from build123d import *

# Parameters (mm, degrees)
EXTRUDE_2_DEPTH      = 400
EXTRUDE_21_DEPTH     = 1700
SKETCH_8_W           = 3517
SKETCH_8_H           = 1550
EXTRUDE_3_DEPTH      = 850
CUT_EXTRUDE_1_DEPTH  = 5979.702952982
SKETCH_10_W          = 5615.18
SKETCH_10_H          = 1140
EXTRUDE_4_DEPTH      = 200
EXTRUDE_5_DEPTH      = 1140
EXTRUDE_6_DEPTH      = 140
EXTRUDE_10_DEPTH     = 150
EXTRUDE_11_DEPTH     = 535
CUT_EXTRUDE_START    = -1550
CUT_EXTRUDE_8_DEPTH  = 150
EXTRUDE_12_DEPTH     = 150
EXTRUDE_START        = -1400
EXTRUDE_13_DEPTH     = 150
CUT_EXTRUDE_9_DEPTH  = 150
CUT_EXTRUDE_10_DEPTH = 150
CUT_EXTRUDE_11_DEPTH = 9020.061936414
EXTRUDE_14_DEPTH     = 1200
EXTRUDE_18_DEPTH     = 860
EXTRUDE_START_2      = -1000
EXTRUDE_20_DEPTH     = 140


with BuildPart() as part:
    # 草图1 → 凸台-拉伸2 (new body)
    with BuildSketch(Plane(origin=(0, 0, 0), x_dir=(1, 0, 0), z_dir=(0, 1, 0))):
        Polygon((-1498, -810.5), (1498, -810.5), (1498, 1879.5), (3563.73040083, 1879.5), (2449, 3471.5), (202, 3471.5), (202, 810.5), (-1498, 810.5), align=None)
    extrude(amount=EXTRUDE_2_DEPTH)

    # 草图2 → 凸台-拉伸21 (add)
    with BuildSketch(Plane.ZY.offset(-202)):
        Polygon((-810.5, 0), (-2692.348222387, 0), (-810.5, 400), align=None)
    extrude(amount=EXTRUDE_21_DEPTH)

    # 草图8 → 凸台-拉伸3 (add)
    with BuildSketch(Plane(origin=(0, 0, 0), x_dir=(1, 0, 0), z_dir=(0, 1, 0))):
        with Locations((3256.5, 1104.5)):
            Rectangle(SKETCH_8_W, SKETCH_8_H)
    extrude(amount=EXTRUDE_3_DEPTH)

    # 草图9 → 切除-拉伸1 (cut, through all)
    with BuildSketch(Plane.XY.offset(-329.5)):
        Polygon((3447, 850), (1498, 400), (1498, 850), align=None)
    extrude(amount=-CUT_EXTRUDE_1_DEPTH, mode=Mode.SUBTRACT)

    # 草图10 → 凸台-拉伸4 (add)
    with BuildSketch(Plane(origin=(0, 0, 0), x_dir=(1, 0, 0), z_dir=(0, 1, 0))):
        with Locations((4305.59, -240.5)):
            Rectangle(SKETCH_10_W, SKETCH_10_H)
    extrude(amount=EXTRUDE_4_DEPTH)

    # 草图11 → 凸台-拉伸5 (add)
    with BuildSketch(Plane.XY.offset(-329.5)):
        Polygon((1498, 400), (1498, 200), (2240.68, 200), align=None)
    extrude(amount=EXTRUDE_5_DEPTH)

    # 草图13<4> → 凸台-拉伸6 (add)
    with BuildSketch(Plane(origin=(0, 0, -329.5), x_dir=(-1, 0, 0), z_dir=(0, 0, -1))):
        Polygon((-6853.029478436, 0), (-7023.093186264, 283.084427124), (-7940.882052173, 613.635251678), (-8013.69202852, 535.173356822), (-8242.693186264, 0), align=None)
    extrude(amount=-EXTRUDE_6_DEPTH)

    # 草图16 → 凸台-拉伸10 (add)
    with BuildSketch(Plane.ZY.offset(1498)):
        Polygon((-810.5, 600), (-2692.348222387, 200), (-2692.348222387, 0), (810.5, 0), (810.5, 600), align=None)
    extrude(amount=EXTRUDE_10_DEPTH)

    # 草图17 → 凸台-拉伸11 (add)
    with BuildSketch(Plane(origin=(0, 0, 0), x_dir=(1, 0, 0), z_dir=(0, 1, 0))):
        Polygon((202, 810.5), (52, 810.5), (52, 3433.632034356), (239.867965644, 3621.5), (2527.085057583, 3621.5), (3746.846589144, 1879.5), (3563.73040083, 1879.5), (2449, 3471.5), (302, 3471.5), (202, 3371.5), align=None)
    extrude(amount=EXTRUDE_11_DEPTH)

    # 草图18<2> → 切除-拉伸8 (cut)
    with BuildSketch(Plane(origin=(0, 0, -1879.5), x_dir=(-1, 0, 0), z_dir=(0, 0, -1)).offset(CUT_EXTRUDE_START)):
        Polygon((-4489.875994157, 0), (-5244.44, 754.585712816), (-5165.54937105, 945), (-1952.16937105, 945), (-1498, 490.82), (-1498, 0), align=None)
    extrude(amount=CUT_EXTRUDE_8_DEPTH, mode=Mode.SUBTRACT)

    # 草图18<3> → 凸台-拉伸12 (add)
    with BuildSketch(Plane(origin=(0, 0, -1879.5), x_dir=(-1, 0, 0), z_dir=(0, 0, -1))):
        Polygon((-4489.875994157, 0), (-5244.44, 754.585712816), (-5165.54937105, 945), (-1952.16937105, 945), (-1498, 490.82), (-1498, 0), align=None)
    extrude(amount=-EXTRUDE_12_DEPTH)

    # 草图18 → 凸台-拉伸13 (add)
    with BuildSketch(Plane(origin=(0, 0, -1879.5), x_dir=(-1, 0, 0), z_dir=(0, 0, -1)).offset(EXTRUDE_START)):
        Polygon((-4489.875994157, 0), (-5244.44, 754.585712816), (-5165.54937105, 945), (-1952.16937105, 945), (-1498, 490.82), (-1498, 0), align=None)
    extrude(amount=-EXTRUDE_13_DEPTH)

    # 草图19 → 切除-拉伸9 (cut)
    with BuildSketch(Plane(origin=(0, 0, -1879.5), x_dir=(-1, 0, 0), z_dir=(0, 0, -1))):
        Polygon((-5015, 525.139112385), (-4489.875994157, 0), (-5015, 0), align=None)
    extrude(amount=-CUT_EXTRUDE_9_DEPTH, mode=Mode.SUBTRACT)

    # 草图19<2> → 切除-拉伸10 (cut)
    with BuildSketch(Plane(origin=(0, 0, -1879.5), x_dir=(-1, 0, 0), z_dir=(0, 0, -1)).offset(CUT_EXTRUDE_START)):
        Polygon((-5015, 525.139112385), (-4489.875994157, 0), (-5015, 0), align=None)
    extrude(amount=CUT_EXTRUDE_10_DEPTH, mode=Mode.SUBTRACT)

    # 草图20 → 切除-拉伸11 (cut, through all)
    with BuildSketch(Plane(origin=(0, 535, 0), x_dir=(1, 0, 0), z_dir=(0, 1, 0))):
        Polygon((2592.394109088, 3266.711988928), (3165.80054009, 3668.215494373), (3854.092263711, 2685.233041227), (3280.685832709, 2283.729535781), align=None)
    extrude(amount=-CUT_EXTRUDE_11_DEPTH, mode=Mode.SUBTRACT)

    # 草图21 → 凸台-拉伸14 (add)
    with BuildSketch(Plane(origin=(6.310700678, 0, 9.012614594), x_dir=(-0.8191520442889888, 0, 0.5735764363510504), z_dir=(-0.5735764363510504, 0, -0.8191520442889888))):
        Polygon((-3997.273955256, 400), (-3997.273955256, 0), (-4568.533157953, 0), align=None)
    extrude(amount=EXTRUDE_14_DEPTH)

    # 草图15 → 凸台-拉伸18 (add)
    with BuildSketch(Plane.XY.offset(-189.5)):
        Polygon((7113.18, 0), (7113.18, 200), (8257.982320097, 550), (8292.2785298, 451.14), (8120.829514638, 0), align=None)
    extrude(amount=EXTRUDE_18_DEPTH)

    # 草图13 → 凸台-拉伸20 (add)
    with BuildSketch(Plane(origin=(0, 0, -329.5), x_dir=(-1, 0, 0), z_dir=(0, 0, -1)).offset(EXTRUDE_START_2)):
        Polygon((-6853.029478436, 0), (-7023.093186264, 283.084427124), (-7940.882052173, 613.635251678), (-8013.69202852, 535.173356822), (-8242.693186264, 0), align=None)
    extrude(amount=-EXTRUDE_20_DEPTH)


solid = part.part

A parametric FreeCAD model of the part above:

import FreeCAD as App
import Part
import Sketcher
from FreeCAD import Vector
Q = App.Units.Quantity


def add_polygon(sketch, points):
    """Adds a closed chain of lines whose ends are joined by coincident constraints."""
    first, n = sketch.GeometryCount, len(points)
    for a, b in zip(points, points[1:] + points[:1]):
        sketch.addGeometry(Part.LineSegment(App.Vector(*a, 0), App.Vector(*b, 0)), False)
    for i in range(n):
        sketch.addConstraint(Sketcher.Constraint("Coincident", first + i, 2, first + (i + 1) % n, 1))

doc = App.newDocument("Part")
body = doc.addObject("PartDesign::Body", "Body")

# Sketch on XZ plane
sketch1 = body.newObject("Sketcher::SketchObject", "Sketch")
sketch1.AttachmentSupport = (doc.getObject("XZ_Plane"), [""])
sketch1.MapMode = "FlatFace"
add_polygon(sketch1, [(-1498, 810), (1498, 810), (1498, -1880), (3564, -1880), (2449, -3472), (202, -3472), (202, -810), (-1498, -810)])  # lines 0-7
sketch1.addConstraint(Sketcher.Constraint("Horizontal", 0))
sketch1.addConstraint(Sketcher.Constraint("Vertical", 1))
sketch1.addConstraint(Sketcher.Constraint("Horizontal", 2))
sketch1.addConstraint(Sketcher.Constraint("Horizontal", 4))
sketch1.addConstraint(Sketcher.Constraint("Vertical", 5))
sketch1.addConstraint(Sketcher.Constraint("Horizontal", 6))
sketch1.addConstraint(Sketcher.Constraint("Vertical", 7))
sketch1.addConstraint(Sketcher.Constraint("Symmetric", 0, 2, 6, 2, -1, 1))
sketch1.addConstraint(Sketcher.Constraint("DistanceX", 0, 1, 0, 2, Q("2996 mm")))
sketch1.addConstraint(Sketcher.Constraint("DistanceX", 4, 2, 4, 1, Q("2247 mm")))
sketch1.addConstraint(Sketcher.Constraint("DistanceX", 6, 2, 6, 1, Q("1700 mm")))
sketch1.addConstraint(Sketcher.Constraint("DistanceY", 1, 2, 1, 1, Q("2690 mm")))
sketch1.addConstraint(Sketcher.Constraint("DistanceY", 5, 1, 5, 2, Q("2661 mm")))
sketch1.addConstraint(Sketcher.Constraint("DistanceY", 7, 1, 7, 2, Q("1621 mm")))
sketch1.addConstraint(Sketcher.Constraint("Angle", 3, Q("-125 deg")))
pad1 = body.newObject("PartDesign::Pad", "Pad")
pad1.Profile = sketch1
pad1.Length = 400
pad1.Reversed = True

# Sketch on YZ plane
sketch2 = body.newObject("Sketcher::SketchObject", "Sketch001")
sketch2.AttachmentSupport = (doc.getObject("YZ_Plane"), [""])
sketch2.MapMode = "FlatFace"
sketch2.AttachmentOffset = App.Placement(Vector(0, 0, 202), App.Rotation())
add_polygon(sketch2, [(0, -2692), (0, -810), (400, -810)])  # lines 0-2
sketch2.addConstraint(Sketcher.Constraint("Vertical", 0))
sketch2.addConstraint(Sketcher.Constraint("Horizontal", 1))
sketch2.addConstraint(Sketcher.Constraint("PointOnObject", 0, 2, -2))
sketch2.addConstraint(Sketcher.Constraint("DistanceX", 1, 1, 1, 2, Q("400 mm")))
sketch2.addConstraint(Sketcher.Constraint("DistanceY", 0, 2, -1, 1, Q("810.5 mm")))
sketch2.addConstraint(Sketcher.Constraint("Distance", 2, Q("1923.89 mm")))
pad2 = body.newObject("PartDesign::Pad", "Pad001")
pad2.Profile = sketch2
pad2.Length = 1700
pad2.Reversed = True

# Sketch on XZ plane
sketch3 = body.newObject("Sketcher::SketchObject", "Sketch002")
sketch3.AttachmentSupport = (doc.getObject("XZ_Plane"), [""])
sketch3.MapMode = "FlatFace"
add_polygon(sketch3, [(1498, -1880), (1498, -330), (5015, -330), (5015, -1880)])  # lines 0-3
sketch3.addConstraint(Sketcher.Constraint("Vertical", 0))
sketch3.addConstraint(Sketcher.Constraint("Horizontal", 1))
sketch3.addConstraint(Sketcher.Constraint("Vertical", 2))
sketch3.addConstraint(Sketcher.Constraint("Horizontal", 3))
sketch3.addConstraint(Sketcher.Constraint("DistanceX", 1, 1, 1, 2, Q("3517 mm")))
sketch3.addConstraint(Sketcher.Constraint("DistanceY", 0, 1, 0, 2, Q("1550 mm")))
sketch3.addConstraint(Sketcher.Constraint("DistanceX", -1, 1, 0, 2, Q("1498 mm")))
sketch3.addConstraint(Sketcher.Constraint("DistanceY", 0, 2, -1, 1, Q("329.5 mm")))
pad3 = body.newObject("PartDesign::Pad", "Pad002")
pad3.Profile = sketch3
pad3.Length = 850
pad3.Reversed = True

# Sketch on XY plane
sketch4 = body.newObject("Sketcher::SketchObject", "Sketch003")
sketch4.AttachmentSupport = (doc.getObject("XY_Plane"), [""])
sketch4.MapMode = "FlatFace"
sketch4.AttachmentOffset = App.Placement(Vector(0, 0, -329.5), App.Rotation())
add_polygon(sketch4, [(1498, 400), (3447, 850), (1498, 850)])  # lines 0-2
sketch4.addConstraint(Sketcher.Constraint("Horizontal", 1))
sketch4.addConstraint(Sketcher.Constraint("Vertical", 2))
sketch4.addConstraint(Sketcher.Constraint("DistanceX", 1, 2, 1, 1, Q("1949 mm")))
sketch4.addConstraint(Sketcher.Constraint("DistanceY", 2, 2, 2, 1, Q("450 mm")))
sketch4.addConstraint(Sketcher.Constraint("DistanceX", -1, 1, 0, 2, Q("3447 mm")))
sketch4.addConstraint(Sketcher.Constraint("DistanceY", -1, 1, 0, 2, Q("850 mm")))
pocket1 = body.newObject("PartDesign::Pocket", "Pocket")
pocket1.Profile = sketch4
pocket1.Type = "ThroughAll"

# Sketch on XZ plane
sketch5 = body.newObject("Sketcher::SketchObject", "Sketch004")
sketch5.AttachmentSupport = (doc.getObject("XZ_Plane"), [""])
sketch5.MapMode = "FlatFace"
add_polygon(sketch5, [(1498, -330), (1498, 810), (7113, 810), (7113, -330)])  # lines 0-3
sketch5.addConstraint(Sketcher.Constraint("Vertical", 0))
sketch5.addConstraint(Sketcher.Constraint("Horizontal", 1))
sketch5.addConstraint(Sketcher.Constraint("Vertical", 2))
sketch5.addConstraint(Sketcher.Constraint("Horizontal", 3))
sketch5.addConstraint(Sketcher.Constraint("DistanceY", 0, 1, 0, 2, Q("1140 mm")))
sketch5.addConstraint(Sketcher.Constraint("DistanceX", -1, 1, 0, 2, Q("1498 mm")))
sketch5.addConstraint(Sketcher.Constraint("DistanceX", 1, 1, 1, 2, Q("5615.18 mm")))
sketch5.addConstraint(Sketcher.Constraint("DistanceY", -1, 1, 0, 2, Q("810.5 mm")))
pad4 = body.newObject("PartDesign::Pad", "Pad003")
pad4.Profile = sketch5
pad4.Length = 200
pad4.Reversed = True

# Sketch on XY plane
sketch6 = body.newObject("Sketcher::SketchObject", "Sketch005")
sketch6.AttachmentSupport = (doc.getObject("XY_Plane"), [""])
sketch6.MapMode = "FlatFace"
sketch6.AttachmentOffset = App.Placement(Vector(0, 0, -329.5), App.Rotation())
add_polygon(sketch6, [(1498, 400), (1498, 200), (2241, 200)])  # lines 0-2
sketch6.addConstraint(Sketcher.Constraint("Vertical", 0))
sketch6.addConstraint(Sketcher.Constraint("Horizontal", 1))
sketch6.addConstraint(Sketcher.Constraint("DistanceY", 0, 2, 0, 1, Q("200 mm")))
sketch6.addConstraint(Sketcher.Constraint("DistanceX", -1, 1, 0, 2, Q("1498 mm")))
sketch6.addConstraint(Sketcher.Constraint("DistanceY", -1, 1, 0, 2, Q("200 mm")))
sketch6.addConstraint(Sketcher.Constraint("DistanceX", 1, 1, 1, 2, Q("742.68 mm")))
pad5 = body.newObject("PartDesign::Pad", "Pad004")
pad5.Profile = sketch6
pad5.Length = 1140

# Sketch on XY plane
sketch7 = body.newObject("Sketcher::SketchObject", "Sketch006")
sketch7.AttachmentSupport = (doc.getObject("XY_Plane"), [""])
sketch7.MapMode = "FlatFace"
sketch7.AttachmentOffset = App.Placement(Vector(0, 0, -329.5), App.Rotation())
add_polygon(sketch7, [(6853, 0), (7023, 283), (7941, 614), (8014, 535), (8243, 0)])  # lines 0-4
sketch7.addConstraint(Sketcher.Constraint("Horizontal", 4))
sketch7.addConstraint(Sketcher.Constraint("PointOnObject", 3, 2, -1))
sketch7.addConstraint(Sketcher.Constraint("Distance", 1, Q("975.5 mm")))
sketch7.addConstraint(Sketcher.Constraint("DistanceX", 0, 2, 3, 2, Q("1219.6 mm")))
sketch7.addConstraint(Sketcher.Constraint("Distance", 0, Q("330.24 mm")))
sketch7.addConstraint(Sketcher.Constraint("Distance", 2, Q("107.04 mm")))
sketch7.addConstraint(Sketcher.Constraint("Distance", 3, Q("582.11 mm")))
sketch7.addConstraint(Sketcher.Constraint("DistanceX", 4, 2, 4, 1, Q("1389.663708 mm")))
sketch7.addConstraint(Sketcher.Constraint("DistanceY", -1, 1, 1, 2, Q("613.635252 mm")))
sketch7.addConstraint(Sketcher.Constraint("DistanceX", -1, 1, 2, 2, Q("8013.692029 mm")))
pad6 = body.newObject("PartDesign::Pad", "Pad005")
pad6.Profile = sketch7
pad6.Length = 140

# Sketch on YZ plane
sketch8 = body.newObject("Sketcher::SketchObject", "Sketch007")
sketch8.AttachmentSupport = (doc.getObject("YZ_Plane"), [""])
sketch8.MapMode = "FlatFace"
sketch8.AttachmentOffset = App.Placement(Vector(0, 0, -1498), App.Rotation())
add_polygon(sketch8, [(600, -810), (200, -2692), (0, -2692), (0, 810), (600, 810)])  # lines 0-4
sketch8.addConstraint(Sketcher.Constraint("Horizontal", 1))
sketch8.addConstraint(Sketcher.Constraint("Vertical", 2))
sketch8.addConstraint(Sketcher.Constraint("Horizontal", 3))
sketch8.addConstraint(Sketcher.Constraint("Vertical", 4))
sketch8.addConstraint(Sketcher.Constraint("PointOnObject", 1, 2, -2))
sketch8.addConstraint(Sketcher.Constraint("DistanceX", 1, 2, 1, 1, Q("200 mm")))
sketch8.addConstraint(Sketcher.Constraint("DistanceX", 3, 1, 3, 2, Q("600 mm")))
sketch8.addConstraint(Sketcher.Constraint("DistanceY", 4, 2, 4, 1, Q("1621 mm")))
sketch8.addConstraint(Sketcher.Constraint("DistanceY", -1, 1, 2, 2, Q("810.5 mm")))
sketch8.addConstraint(Sketcher.Constraint("Distance", 0, Q("1923.89 mm")))
pad7 = body.newObject("PartDesign::Pad", "Pad006")
pad7.Profile = sketch8
pad7.Length = 150
pad7.Reversed = True

# Sketch on XZ plane
sketch9 = body.newObject("Sketcher::SketchObject", "Sketch008")
sketch9.AttachmentSupport = (doc.getObject("XZ_Plane"), [""])
sketch9.MapMode = "FlatFace"
add_polygon(sketch9, [(52, -810), (202, -810), (202, -3372), (302, -3472), (2449, -3472), (3564, -1880), (3747, -1880), (2527, -3622), (240, -3622), (52, -3434)])  # lines 0-9
sketch9.addConstraint(Sketcher.Constraint("Horizontal", 0))
sketch9.addConstraint(Sketcher.Constraint("Vertical", 1))
sketch9.addConstraint(Sketcher.Constraint("Horizontal", 3))
sketch9.addConstraint(Sketcher.Constraint("Horizontal", 5))
sketch9.addConstraint(Sketcher.Constraint("Horizontal", 7))
sketch9.addConstraint(Sketcher.Constraint("Vertical", 9))
sketch9.addConstraint(Sketcher.Constraint("Parallel", 4, 6))
sketch9.addConstraint(Sketcher.Constraint("Parallel", 2, 8))
sketch9.addConstraint(Sketcher.Constraint("DistanceX", 0, 1, 0, 2, Q("150 mm")))
sketch9.addConstraint(Sketcher.Constraint("DistanceX", 3, 1, 3, 2, Q("2147 mm")))
sketch9.addConstraint(Sketcher.Constraint("DistanceY", 1, 2, 1, 1, Q("2561 mm")))
sketch9.addConstraint(Sketcher.Constraint("Angle", 2, Q("-45 deg")))
sketch9.addConstraint(Sketcher.Constraint("Angle", 4, Q("55 deg")))
sketch9.addConstraint(Sketcher.Constraint("DistanceX", -1, 1, 0, 2, Q("202 mm")))
sketch9.addConstraint(Sketcher.Constraint("DistanceX", -1, 1, 2, 2, Q("302 mm")))
sketch9.addConstraint(Sketcher.Constraint("DistanceY", 3, 2, 4, 2, Q("1592 mm")))
sketch9.addConstraint(Sketcher.Constraint("DistanceY", 6, 2, 3, 2, Q("150 mm")))
sketch9.addConstraint(Sketcher.Constraint("DistanceY", 0, 2, -1, 1, Q("810.5 mm")))
sketch9.addConstraint(Sketcher.Constraint("DistanceX", 5, 1, 5, 2, Q("183.116188 mm")))
sketch9.addConstraint(Sketcher.Constraint("DistanceX", 7, 2, 7, 1, Q("2287.217092 mm")))
pad8 = body.newObject("PartDesign::Pad", "Pad007")
pad8.Profile = sketch9
pad8.Length = 535
pad8.Reversed = True

# Sketch on XY plane
sketch10 = body.newObject("Sketcher::SketchObject", "Sketch009")
sketch10.AttachmentSupport = (doc.getObject("XY_Plane"), [""])
sketch10.MapMode = "FlatFace"
sketch10.AttachmentOffset = App.Placement(Vector(0, 0, -329.5), App.Rotation())
add_polygon(sketch10, [(5244, 755), (4490, 0), (1498, 0), (1498, 491), (1952, 945), (5166, 945)])  # lines 0-5
sketch10.addConstraint(Sketcher.Constraint("Horizontal", 1))
sketch10.addConstraint(Sketcher.Constraint("Vertical", 2))
sketch10.addConstraint(Sketcher.Constraint("Horizontal", 4))
sketch10.addConstraint(Sketcher.Constraint("PointOnObject", 0, 2, -1))
sketch10.addConstraint(Sketcher.Constraint("DistanceX", -1, 1, 1, 2, Q("1498 mm")))
sketch10.addConstraint(Sketcher.Constraint("DistanceY", -1, 1, 3, 2, Q("945 mm")))
sketch10.addConstraint(Sketcher.Constraint("Distance", 3, Q("642.3 mm")))
sketch10.addConstraint(Sketcher.Constraint("DistanceX", 4, 1, 4, 2, Q("3213.38 mm")))
sketch10.addConstraint(Sketcher.Constraint("DistanceY", 2, 1, 2, 2, Q("490.82 mm")))
sketch10.addConstraint(Sketcher.Constraint("Distance", 0, Q("1067.13 mm")))
sketch10.addConstraint(Sketcher.Constraint("Distance", 5, Q("206.11 mm")))
sketch10.addConstraint(Sketcher.Constraint("DistanceX", -1, 1, 5, 2, Q("5244.44 mm")))
pocket2 = body.newObject("PartDesign::Pocket", "Pocket001")
pocket2.Profile = sketch10
pocket2.Length = 150

# Sketch on XY plane
sketch11 = body.newObject("Sketcher::SketchObject", "Sketch010")
sketch11.AttachmentSupport = (doc.getObject("XY_Plane"), [""])
sketch11.MapMode = "FlatFace"
sketch11.AttachmentOffset = App.Placement(Vector(0, 0, -1879.5), App.Rotation())
add_polygon(sketch11, [(5244, 755), (4490, 0), (1498, 0), (1498, 491), (1952, 945), (5166, 945)])  # lines 0-5
sketch11.addConstraint(Sketcher.Constraint("Horizontal", 1))
sketch11.addConstraint(Sketcher.Constraint("Vertical", 2))
sketch11.addConstraint(Sketcher.Constraint("Horizontal", 4))
sketch11.addConstraint(Sketcher.Constraint("PointOnObject", 0, 2, -1))
sketch11.addConstraint(Sketcher.Constraint("DistanceX", -1, 1, 1, 2, Q("1498 mm")))
sketch11.addConstraint(Sketcher.Constraint("DistanceY", -1, 1, 3, 2, Q("945 mm")))
sketch11.addConstraint(Sketcher.Constraint("Distance", 3, Q("642.3 mm")))
sketch11.addConstraint(Sketcher.Constraint("DistanceX", 4, 1, 4, 2, Q("3213.38 mm")))
sketch11.addConstraint(Sketcher.Constraint("DistanceY", 2, 1, 2, 2, Q("490.82 mm")))
sketch11.addConstraint(Sketcher.Constraint("Distance", 0, Q("1067.13 mm")))
sketch11.addConstraint(Sketcher.Constraint("Distance", 5, Q("206.11 mm")))
sketch11.addConstraint(Sketcher.Constraint("DistanceX", -1, 1, 5, 2, Q("5244.44 mm")))
pad9 = body.newObject("PartDesign::Pad", "Pad008")
pad9.Profile = sketch11
pad9.Length = 150

# Sketch on XY plane
sketch12 = body.newObject("Sketcher::SketchObject", "Sketch011")
sketch12.AttachmentSupport = (doc.getObject("XY_Plane"), [""])
sketch12.MapMode = "FlatFace"
sketch12.AttachmentOffset = App.Placement(Vector(0, 0, -479.5), App.Rotation())
add_polygon(sketch12, [(5244, 755), (4490, 0), (1498, 0), (1498, 491), (1952, 945), (5166, 945)])  # lines 0-5
sketch12.addConstraint(Sketcher.Constraint("Horizontal", 1))
sketch12.addConstraint(Sketcher.Constraint("Vertical", 2))
sketch12.addConstraint(Sketcher.Constraint("Horizontal", 4))
sketch12.addConstraint(Sketcher.Constraint("PointOnObject", 0, 2, -1))
sketch12.addConstraint(Sketcher.Constraint("DistanceX", -1, 1, 1, 2, Q("1498 mm")))
sketch12.addConstraint(Sketcher.Constraint("DistanceY", -1, 1, 3, 2, Q("945 mm")))
sketch12.addConstraint(Sketcher.Constraint("Distance", 3, Q("642.3 mm")))
sketch12.addConstraint(Sketcher.Constraint("DistanceX", 4, 1, 4, 2, Q("3213.38 mm")))
sketch12.addConstraint(Sketcher.Constraint("DistanceY", 2, 1, 2, 2, Q("490.82 mm")))
sketch12.addConstraint(Sketcher.Constraint("Distance", 0, Q("1067.13 mm")))
sketch12.addConstraint(Sketcher.Constraint("Distance", 5, Q("206.11 mm")))
sketch12.addConstraint(Sketcher.Constraint("DistanceX", -1, 1, 5, 2, Q("5244.44 mm")))
pad10 = body.newObject("PartDesign::Pad", "Pad009")
pad10.Profile = sketch12
pad10.Length = 150

# Sketch on XY plane
sketch13 = body.newObject("Sketcher::SketchObject", "Sketch012")
sketch13.AttachmentSupport = (doc.getObject("XY_Plane"), [""])
sketch13.MapMode = "FlatFace"
sketch13.AttachmentOffset = App.Placement(Vector(0, 0, -1879.5), App.Rotation())
add_polygon(sketch13, [(4490, 0), (5015, 525), (5015, 0)])  # lines 0-2
sketch13.addConstraint(Sketcher.Constraint("Vertical", 1))
sketch13.addConstraint(Sketcher.Constraint("Horizontal", 2))
sketch13.addConstraint(Sketcher.Constraint("PointOnObject", 1, 2, -1))
sketch13.addConstraint(Sketcher.Constraint("DistanceX", -1, 1, 0, 2, Q("5015 mm")))
sketch13.addConstraint(Sketcher.Constraint("DistanceX", 2, 2, 2, 1, Q("525.124006 mm")))
sketch13.addConstraint(Sketcher.Constraint("DistanceY", 1, 2, 1, 1, Q("525.139112 mm")))
pocket3 = body.newObject("PartDesign::Pocket", "Pocket002")
pocket3.Profile = sketch13
pocket3.Length = 150
pocket3.Reversed = True

# Sketch on XY plane
sketch14 = body.newObject("Sketcher::SketchObject", "Sketch013")
sketch14.AttachmentSupport = (doc.getObject("XY_Plane"), [""])
sketch14.MapMode = "FlatFace"
sketch14.AttachmentOffset = App.Placement(Vector(0, 0, -329.5), App.Rotation())
add_polygon(sketch14, [(4490, 0), (5015, 525), (5015, 0)])  # lines 0-2
sketch14.addConstraint(Sketcher.Constraint("Vertical", 1))
sketch14.addConstraint(Sketcher.Constraint("Horizontal", 2))
sketch14.addConstraint(Sketcher.Constraint("PointOnObject", 1, 2, -1))
sketch14.addConstraint(Sketcher.Constraint("DistanceX", -1, 1, 0, 2, Q("5015 mm")))
sketch14.addConstraint(Sketcher.Constraint("DistanceX", 2, 2, 2, 1, Q("525.124006 mm")))
sketch14.addConstraint(Sketcher.Constraint("DistanceY", 1, 2, 1, 1, Q("525.139112 mm")))
pocket4 = body.newObject("PartDesign::Pocket", "Pocket003")
pocket4.Profile = sketch14
pocket4.Length = 150

# Sketch on XZ plane
sketch15 = body.newObject("Sketcher::SketchObject", "Sketch014")
sketch15.AttachmentSupport = (doc.getObject("XZ_Plane"), [""])
sketch15.MapMode = "FlatFace"
sketch15.AttachmentOffset = App.Placement(Vector(0, 0, -535), App.Rotation())
add_polygon(sketch15, [(3166, -3668), (2592, -3267), (3281, -2284), (3854, -2685)])  # lines 0-3
sketch15.addConstraint(Sketcher.Constraint("Perpendicular", 0, 1))
sketch15.addConstraint(Sketcher.Constraint("Perpendicular", 1, 2))
sketch15.addConstraint(Sketcher.Constraint("Perpendicular", 2, 3))
sketch15.addConstraint(Sketcher.Constraint("Angle", 0, Q("145 deg")))
sketch15.addConstraint(Sketcher.Constraint("Distance", 0, Q("700 mm")))
sketch15.addConstraint(Sketcher.Constraint("Distance", 1, Q("1200 mm")))
sketch15.addConstraint(Sketcher.Constraint("DistanceX", -1, 1, 0, 2, Q("2592.394109 mm")))
sketch15.addConstraint(Sketcher.Constraint("DistanceY", 0, 2, -1, 1, Q("3266.711989 mm")))
pocket5 = body.newObject("PartDesign::Pocket", "Pocket004")
pocket5.Profile = sketch15
pocket5.Type = "ThroughAll"
pocket5.Reversed = True

# Sketch on an angled plane
sketch16 = body.newObject("Sketcher::SketchObject", "Sketch015")
sketch16.Placement = App.Placement(Vector(6.310701, 0, 9.012615), App.Rotation(Vector(-0.819152044, 0, 0.573576436), Vector(0, 0.999999999, 0), Vector(-0.573576436, 0, -0.819152044), "ZXY"))
add_polygon(sketch16, [(-3997, 0), (-3997, 400), (-4569, 0)])  # lines 0-2
sketch16.addConstraint(Sketcher.Constraint("Vertical", 0))
sketch16.addConstraint(Sketcher.Constraint("Horizontal", 2))
sketch16.addConstraint(Sketcher.Constraint("PointOnObject", 1, 2, -1))
sketch16.addConstraint(Sketcher.Constraint("DistanceY", 0, 1, 0, 2, Q("399.999999 mm")))
sketch16.addConstraint(Sketcher.Constraint("Angle", 1, Q("-145 deg")))
sketch16.addConstraint(Sketcher.Constraint("DistanceX", 0, 2, -1, 1, Q("3997.273952 mm")))
pad11 = body.newObject("PartDesign::Pad", "Pad010")
pad11.Profile = sketch16
pad11.Length = 1200

# Sketch on XY plane
sketch17 = body.newObject("Sketcher::SketchObject", "Sketch016")
sketch17.AttachmentSupport = (doc.getObject("XY_Plane"), [""])
sketch17.MapMode = "FlatFace"
sketch17.AttachmentOffset = App.Placement(Vector(0, 0, -189.5), App.Rotation())
add_polygon(sketch17, [(7113, 200), (7113, 0), (8121, 0), (8292, 451), (8258, 550)])  # lines 0-4
sketch17.addConstraint(Sketcher.Constraint("Vertical", 0))
sketch17.addConstraint(Sketcher.Constraint("Horizontal", 1))
sketch17.addConstraint(Sketcher.Constraint("PointOnObject", 0, 2, -1))
sketch17.addConstraint(Sketcher.Constraint("DistanceY", 0, 2, 0, 1, Q("200 mm")))
sketch17.addConstraint(Sketcher.Constraint("DistanceY", -1, 1, 3, 2, Q("550 mm")))
sketch17.addConstraint(Sketcher.Constraint("Distance", 2, Q("482.62 mm")))
sketch17.addConstraint(Sketcher.Constraint("Distance", 3, Q("104.64 mm")))
sketch17.addConstraint(Sketcher.Constraint("Distance", 4, Q("1197.11 mm")))
sketch17.addConstraint(Sketcher.Constraint("DistanceX", -1, 1, 0, 2, Q("7113.18 mm")))
sketch17.addConstraint(Sketcher.Constraint("DistanceY", -1, 1, 2, 2, Q("451.14 mm")))
pad12 = body.newObject("PartDesign::Pad", "Pad011")
pad12.Profile = sketch17
pad12.Length = 860

# Sketch on XY plane
sketch18 = body.newObject("Sketcher::SketchObject", "Sketch017")
sketch18.AttachmentSupport = (doc.getObject("XY_Plane"), [""])
sketch18.MapMode = "FlatFace"
sketch18.AttachmentOffset = App.Placement(Vector(0, 0, 670.5), App.Rotation())
add_polygon(sketch18, [(6853, 0), (7023, 283), (7941, 614), (8014, 535), (8243, 0)])  # lines 0-4
sketch18.addConstraint(Sketcher.Constraint("Horizontal", 4))
sketch18.addConstraint(Sketcher.Constraint("PointOnObject", 3, 2, -1))
sketch18.addConstraint(Sketcher.Constraint("Distance", 1, Q("975.5 mm")))
sketch18.addConstraint(Sketcher.Constraint("DistanceX", 0, 2, 3, 2, Q("1219.6 mm")))
sketch18.addConstraint(Sketcher.Constraint("Distance", 0, Q("330.24 mm")))
sketch18.addConstraint(Sketcher.Constraint("Distance", 2, Q("107.04 mm")))
sketch18.addConstraint(Sketcher.Constraint("Distance", 3, Q("582.11 mm")))
sketch18.addConstraint(Sketcher.Constraint("DistanceX", 4, 2, 4, 1, Q("1389.663708 mm")))
sketch18.addConstraint(Sketcher.Constraint("DistanceY", -1, 1, 1, 2, Q("613.635252 mm")))
sketch18.addConstraint(Sketcher.Constraint("DistanceX", -1, 1, 2, 2, Q("8013.692029 mm")))
pad13 = body.newObject("PartDesign::Pad", "Pad012")
pad13.Profile = sketch18
pad13.Length = 140

doc.recompute()
